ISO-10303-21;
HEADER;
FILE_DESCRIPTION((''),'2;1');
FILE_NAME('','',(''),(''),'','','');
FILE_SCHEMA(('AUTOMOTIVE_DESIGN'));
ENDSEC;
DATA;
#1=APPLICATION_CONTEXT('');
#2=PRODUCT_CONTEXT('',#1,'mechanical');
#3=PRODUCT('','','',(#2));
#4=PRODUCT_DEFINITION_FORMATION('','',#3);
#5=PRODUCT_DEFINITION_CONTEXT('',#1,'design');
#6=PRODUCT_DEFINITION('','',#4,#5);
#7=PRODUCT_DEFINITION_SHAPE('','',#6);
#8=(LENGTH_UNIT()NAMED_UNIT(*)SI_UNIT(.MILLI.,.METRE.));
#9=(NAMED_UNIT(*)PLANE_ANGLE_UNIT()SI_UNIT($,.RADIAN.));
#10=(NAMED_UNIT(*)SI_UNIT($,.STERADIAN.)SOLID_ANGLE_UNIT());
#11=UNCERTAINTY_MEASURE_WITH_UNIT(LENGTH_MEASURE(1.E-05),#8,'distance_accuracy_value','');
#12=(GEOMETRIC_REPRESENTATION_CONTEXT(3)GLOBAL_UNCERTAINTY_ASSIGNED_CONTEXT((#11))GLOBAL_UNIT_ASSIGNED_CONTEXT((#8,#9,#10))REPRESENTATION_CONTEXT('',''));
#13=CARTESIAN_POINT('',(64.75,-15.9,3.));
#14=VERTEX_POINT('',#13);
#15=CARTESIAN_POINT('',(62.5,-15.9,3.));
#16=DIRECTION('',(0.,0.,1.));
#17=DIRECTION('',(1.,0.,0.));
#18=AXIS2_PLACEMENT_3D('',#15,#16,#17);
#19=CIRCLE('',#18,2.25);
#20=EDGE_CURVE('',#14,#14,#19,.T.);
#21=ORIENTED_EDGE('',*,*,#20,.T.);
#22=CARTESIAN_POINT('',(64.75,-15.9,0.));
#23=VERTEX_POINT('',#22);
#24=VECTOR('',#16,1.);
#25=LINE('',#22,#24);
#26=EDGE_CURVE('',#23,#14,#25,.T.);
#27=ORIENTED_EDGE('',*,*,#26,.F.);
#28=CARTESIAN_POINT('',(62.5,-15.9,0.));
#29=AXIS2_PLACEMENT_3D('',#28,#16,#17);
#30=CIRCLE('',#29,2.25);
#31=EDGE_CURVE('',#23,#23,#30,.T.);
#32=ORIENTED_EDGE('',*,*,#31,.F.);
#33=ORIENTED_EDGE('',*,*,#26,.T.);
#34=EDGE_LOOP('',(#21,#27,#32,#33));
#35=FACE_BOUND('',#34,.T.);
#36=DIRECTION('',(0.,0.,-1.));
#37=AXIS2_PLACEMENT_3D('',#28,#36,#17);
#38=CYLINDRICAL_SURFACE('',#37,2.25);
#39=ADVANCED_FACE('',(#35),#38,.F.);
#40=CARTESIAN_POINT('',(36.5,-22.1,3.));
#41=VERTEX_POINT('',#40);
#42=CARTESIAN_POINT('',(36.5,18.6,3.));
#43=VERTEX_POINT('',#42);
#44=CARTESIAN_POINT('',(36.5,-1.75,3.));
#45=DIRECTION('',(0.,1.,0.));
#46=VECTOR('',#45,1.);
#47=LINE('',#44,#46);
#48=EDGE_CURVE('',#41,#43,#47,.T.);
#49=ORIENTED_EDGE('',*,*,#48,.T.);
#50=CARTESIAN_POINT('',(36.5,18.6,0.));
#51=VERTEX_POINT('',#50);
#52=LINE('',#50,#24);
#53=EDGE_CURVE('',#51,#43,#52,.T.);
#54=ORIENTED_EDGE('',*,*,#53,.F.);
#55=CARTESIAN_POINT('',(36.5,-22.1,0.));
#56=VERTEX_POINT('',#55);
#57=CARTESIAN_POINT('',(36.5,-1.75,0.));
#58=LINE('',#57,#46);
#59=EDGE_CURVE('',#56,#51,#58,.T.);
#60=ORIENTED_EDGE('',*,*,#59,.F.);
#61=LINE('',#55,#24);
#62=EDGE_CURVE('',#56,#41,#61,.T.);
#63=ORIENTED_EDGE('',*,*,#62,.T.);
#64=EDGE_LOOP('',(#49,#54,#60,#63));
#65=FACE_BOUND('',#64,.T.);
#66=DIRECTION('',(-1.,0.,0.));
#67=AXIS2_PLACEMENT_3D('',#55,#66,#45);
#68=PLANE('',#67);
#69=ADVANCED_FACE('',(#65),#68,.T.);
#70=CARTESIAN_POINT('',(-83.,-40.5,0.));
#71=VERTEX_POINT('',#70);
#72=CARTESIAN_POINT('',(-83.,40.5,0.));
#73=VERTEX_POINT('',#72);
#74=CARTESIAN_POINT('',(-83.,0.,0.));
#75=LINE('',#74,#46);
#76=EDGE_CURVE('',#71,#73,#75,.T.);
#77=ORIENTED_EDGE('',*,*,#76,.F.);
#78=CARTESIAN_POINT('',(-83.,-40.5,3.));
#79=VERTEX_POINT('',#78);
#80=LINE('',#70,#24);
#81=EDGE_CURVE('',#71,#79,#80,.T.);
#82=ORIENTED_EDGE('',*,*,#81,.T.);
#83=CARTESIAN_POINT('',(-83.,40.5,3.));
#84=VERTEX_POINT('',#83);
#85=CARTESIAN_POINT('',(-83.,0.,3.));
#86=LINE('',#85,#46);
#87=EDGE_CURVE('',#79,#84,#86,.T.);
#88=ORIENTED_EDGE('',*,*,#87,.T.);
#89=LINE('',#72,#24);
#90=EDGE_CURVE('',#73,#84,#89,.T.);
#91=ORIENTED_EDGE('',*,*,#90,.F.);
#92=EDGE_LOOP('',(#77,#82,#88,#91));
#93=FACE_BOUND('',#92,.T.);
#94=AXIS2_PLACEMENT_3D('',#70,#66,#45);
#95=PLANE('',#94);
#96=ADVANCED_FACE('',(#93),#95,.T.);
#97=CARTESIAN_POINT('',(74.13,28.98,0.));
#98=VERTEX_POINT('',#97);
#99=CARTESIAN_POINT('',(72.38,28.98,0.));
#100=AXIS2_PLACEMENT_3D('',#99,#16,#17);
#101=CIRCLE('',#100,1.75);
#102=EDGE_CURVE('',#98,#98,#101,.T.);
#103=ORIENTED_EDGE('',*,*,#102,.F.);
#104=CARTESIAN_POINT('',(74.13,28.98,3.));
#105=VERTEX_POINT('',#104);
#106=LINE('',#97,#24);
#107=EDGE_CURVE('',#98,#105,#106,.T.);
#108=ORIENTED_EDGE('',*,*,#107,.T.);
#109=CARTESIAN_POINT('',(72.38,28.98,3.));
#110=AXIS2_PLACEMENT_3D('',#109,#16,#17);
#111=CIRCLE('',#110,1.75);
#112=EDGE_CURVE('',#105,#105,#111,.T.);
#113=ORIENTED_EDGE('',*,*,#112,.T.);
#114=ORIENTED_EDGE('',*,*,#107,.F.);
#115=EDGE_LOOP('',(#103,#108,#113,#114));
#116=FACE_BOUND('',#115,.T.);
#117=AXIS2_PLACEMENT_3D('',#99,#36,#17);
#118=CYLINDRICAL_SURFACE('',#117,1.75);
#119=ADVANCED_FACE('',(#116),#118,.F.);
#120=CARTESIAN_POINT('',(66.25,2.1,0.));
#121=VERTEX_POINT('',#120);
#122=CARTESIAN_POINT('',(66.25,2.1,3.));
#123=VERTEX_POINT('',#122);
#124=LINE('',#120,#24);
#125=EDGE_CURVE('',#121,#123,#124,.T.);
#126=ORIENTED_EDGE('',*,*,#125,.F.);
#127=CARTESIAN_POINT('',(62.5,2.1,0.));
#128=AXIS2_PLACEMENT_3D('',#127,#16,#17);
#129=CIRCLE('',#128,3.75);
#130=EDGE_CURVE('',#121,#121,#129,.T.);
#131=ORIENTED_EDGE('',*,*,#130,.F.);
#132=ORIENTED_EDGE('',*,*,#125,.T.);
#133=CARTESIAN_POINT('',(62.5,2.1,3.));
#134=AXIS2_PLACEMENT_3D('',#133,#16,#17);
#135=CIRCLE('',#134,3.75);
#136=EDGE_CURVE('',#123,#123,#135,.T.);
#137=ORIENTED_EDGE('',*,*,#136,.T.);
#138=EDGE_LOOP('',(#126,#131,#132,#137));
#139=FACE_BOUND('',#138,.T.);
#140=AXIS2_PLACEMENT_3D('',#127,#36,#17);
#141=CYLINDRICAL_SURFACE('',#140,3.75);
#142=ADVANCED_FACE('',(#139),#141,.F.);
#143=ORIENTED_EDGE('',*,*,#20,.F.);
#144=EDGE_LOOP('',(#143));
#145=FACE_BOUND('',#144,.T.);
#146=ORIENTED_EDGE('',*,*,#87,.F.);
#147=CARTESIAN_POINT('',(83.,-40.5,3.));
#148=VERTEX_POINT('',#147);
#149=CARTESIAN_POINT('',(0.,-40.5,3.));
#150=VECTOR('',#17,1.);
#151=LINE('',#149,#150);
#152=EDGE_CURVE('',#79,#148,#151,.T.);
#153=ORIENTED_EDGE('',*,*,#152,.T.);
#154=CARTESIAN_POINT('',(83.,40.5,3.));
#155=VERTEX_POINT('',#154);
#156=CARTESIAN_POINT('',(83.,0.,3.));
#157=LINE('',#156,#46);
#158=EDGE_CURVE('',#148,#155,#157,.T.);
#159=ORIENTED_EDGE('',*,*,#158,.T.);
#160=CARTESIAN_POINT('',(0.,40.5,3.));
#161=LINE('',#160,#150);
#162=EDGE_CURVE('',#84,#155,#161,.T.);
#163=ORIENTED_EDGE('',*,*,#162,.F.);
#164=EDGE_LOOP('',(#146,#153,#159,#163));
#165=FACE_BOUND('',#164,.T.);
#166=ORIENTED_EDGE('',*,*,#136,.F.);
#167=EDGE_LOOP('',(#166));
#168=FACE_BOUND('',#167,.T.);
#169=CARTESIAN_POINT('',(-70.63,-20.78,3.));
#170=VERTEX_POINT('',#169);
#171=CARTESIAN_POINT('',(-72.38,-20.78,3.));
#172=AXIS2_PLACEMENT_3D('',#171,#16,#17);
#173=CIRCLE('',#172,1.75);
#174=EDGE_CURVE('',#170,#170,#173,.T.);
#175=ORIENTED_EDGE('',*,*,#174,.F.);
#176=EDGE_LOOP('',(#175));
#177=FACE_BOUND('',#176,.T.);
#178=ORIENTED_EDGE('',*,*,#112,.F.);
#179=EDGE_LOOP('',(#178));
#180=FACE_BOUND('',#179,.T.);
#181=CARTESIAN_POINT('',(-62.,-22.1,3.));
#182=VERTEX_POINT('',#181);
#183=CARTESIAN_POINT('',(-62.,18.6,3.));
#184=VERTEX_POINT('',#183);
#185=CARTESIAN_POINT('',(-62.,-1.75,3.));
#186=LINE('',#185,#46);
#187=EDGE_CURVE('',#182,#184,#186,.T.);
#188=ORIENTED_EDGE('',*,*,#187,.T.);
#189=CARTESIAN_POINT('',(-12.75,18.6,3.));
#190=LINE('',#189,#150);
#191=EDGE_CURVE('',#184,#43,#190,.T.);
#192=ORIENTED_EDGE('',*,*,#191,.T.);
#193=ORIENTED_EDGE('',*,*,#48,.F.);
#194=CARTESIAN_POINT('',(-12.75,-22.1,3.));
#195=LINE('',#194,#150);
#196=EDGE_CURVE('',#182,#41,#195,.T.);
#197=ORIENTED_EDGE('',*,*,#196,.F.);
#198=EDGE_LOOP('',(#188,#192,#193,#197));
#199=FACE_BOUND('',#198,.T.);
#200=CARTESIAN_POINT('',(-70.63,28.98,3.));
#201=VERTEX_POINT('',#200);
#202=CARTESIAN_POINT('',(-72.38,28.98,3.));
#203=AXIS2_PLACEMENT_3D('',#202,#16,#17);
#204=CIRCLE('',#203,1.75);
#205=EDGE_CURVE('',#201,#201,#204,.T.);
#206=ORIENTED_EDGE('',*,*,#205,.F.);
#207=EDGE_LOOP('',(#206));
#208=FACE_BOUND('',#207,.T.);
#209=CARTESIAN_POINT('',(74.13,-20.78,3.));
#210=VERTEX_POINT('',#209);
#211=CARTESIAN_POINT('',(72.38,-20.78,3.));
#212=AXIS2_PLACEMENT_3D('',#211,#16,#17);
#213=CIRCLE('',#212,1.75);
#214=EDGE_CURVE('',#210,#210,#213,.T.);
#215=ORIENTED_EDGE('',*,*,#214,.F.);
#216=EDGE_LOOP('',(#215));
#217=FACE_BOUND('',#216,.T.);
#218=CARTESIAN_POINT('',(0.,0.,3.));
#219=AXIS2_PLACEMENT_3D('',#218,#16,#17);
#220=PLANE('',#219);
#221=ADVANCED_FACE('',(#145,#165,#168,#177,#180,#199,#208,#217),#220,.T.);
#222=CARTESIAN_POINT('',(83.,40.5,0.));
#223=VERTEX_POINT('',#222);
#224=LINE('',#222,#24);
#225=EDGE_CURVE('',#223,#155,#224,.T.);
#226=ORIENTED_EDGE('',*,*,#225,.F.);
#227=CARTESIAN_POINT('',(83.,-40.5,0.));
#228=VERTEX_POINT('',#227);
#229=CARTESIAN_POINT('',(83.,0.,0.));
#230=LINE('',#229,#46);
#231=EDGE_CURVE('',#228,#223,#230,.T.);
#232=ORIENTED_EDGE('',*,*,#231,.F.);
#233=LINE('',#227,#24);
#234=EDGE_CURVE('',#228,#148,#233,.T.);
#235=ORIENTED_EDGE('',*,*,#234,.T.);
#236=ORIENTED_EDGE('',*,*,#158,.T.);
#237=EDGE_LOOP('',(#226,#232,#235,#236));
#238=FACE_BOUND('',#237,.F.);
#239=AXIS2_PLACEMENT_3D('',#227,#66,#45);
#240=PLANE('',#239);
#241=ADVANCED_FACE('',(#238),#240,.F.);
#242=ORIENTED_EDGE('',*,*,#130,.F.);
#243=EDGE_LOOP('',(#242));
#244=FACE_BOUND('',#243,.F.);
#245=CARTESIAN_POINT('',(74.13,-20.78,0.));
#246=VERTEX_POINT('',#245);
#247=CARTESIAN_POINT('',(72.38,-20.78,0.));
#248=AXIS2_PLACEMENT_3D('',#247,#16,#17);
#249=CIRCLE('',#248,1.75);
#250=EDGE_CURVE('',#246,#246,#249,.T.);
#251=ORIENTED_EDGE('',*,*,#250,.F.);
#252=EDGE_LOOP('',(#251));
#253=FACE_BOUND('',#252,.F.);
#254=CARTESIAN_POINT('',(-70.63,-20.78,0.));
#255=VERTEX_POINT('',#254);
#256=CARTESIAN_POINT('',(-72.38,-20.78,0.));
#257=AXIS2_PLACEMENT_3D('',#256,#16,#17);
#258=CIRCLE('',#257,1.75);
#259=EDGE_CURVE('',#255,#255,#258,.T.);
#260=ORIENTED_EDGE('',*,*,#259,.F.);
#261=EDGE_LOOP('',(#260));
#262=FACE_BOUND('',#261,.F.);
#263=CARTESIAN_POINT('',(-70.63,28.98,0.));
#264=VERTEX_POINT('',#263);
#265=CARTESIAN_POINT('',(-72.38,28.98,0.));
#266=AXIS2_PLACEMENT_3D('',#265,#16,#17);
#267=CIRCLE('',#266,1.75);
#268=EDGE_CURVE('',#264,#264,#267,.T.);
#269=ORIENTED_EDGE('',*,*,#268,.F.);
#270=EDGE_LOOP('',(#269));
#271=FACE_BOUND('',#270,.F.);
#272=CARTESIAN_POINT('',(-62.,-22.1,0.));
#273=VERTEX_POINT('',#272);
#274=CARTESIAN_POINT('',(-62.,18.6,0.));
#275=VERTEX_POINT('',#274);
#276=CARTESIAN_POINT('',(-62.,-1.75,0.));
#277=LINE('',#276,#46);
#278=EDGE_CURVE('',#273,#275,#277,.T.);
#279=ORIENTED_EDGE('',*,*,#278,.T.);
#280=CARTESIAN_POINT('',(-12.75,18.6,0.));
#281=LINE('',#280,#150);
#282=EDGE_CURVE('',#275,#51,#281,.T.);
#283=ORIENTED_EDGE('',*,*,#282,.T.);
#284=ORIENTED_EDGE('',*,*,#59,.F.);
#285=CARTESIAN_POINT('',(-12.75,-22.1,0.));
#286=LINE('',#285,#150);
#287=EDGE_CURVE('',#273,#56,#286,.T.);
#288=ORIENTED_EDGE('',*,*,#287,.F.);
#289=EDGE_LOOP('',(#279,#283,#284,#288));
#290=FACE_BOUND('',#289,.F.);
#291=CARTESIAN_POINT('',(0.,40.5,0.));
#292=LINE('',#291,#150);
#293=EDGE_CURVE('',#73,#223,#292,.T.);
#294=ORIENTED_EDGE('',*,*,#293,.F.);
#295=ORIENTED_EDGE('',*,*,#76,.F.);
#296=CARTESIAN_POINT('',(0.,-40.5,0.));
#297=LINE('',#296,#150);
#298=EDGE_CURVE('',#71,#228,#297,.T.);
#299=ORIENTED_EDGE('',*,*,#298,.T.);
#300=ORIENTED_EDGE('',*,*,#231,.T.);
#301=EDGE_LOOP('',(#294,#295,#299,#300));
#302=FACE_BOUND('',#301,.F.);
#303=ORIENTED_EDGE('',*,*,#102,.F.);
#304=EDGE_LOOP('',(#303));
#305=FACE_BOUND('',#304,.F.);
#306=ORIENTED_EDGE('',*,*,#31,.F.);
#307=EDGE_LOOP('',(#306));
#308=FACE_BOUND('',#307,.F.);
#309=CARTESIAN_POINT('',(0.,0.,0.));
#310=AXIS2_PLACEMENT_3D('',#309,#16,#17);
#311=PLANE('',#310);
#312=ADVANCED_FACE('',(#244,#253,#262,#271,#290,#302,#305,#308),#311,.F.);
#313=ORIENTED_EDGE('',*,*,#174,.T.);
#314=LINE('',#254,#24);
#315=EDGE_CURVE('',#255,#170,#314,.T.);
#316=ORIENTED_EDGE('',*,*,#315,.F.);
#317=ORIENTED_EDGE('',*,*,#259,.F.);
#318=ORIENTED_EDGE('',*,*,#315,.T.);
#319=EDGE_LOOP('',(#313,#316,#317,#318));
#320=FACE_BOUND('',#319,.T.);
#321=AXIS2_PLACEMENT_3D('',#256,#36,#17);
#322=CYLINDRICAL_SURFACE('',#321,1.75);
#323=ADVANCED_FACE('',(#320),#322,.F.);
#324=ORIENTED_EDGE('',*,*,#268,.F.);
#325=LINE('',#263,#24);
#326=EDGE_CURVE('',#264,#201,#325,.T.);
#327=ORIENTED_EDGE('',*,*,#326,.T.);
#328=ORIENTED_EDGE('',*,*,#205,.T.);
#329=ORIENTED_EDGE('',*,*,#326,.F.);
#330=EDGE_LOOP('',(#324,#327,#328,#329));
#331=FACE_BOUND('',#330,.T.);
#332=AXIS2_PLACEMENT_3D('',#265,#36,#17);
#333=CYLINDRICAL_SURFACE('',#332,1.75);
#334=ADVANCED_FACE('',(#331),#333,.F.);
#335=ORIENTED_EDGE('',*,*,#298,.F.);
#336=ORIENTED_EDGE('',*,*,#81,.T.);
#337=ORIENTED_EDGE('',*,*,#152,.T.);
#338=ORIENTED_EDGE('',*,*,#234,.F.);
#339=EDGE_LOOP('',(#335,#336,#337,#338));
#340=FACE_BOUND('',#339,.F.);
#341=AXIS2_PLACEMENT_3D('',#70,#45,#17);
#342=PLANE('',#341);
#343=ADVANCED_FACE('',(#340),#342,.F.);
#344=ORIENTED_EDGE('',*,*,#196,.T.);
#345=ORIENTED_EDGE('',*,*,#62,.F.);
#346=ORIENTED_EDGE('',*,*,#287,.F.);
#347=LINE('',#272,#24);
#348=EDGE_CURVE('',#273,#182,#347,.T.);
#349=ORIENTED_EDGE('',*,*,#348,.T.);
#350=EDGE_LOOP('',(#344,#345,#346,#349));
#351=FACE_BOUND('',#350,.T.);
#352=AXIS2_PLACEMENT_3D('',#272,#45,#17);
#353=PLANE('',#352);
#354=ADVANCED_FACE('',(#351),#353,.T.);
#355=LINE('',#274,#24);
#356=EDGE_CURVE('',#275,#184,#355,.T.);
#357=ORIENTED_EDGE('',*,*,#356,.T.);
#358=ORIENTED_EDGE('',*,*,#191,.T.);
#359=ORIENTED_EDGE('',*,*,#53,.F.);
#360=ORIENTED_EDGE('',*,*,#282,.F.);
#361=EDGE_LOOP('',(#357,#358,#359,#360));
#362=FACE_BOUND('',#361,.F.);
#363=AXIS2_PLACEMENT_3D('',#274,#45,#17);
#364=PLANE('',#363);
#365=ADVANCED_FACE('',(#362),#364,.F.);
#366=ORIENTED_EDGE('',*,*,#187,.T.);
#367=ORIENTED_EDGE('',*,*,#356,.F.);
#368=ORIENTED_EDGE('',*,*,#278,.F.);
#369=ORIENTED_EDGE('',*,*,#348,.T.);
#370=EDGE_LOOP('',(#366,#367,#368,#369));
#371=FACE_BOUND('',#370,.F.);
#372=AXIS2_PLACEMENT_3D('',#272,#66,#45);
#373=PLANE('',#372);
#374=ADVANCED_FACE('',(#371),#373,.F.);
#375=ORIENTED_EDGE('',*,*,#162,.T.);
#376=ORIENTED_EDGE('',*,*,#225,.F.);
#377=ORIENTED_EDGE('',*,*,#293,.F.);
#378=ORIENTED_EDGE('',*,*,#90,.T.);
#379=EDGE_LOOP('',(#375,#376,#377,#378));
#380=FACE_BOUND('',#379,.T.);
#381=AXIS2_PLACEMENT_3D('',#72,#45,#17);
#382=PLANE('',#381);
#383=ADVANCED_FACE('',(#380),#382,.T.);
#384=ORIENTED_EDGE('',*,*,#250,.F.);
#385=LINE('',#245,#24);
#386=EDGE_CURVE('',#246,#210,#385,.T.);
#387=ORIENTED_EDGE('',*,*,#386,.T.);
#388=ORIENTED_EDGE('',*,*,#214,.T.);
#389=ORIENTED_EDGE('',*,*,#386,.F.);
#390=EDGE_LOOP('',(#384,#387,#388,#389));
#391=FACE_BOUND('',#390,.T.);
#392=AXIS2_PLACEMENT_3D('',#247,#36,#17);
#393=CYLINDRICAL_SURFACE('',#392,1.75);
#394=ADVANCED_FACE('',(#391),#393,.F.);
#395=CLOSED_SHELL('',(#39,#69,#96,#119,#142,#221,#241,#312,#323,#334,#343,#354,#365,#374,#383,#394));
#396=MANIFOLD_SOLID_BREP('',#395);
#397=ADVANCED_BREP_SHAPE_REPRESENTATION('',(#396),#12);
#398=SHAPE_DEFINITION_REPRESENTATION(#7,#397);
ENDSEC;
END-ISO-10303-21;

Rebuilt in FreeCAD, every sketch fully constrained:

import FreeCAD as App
import Part
import Sketcher

V = App.Vector
Q = App.Units.Quantity


def add_polygon(sketch, points):
    """Adds a closed chain of lines whose ends are joined by coincident constraints."""
    first, n = sketch.GeometryCount, len(points)
    for a, b in zip(points, points[1:] + points[:1]):
        sketch.addGeometry(Part.LineSegment(App.Vector(*a, 0), App.Vector(*b, 0)), False)
    for i in range(n):
        sketch.addConstraint(Sketcher.Constraint("Coincident", first + i, 2, first + (i + 1) % n, 1))

doc = App.newDocument("Part")
params = doc.addObject("Spreadsheet::Sheet", "Params")
for row, (alias, value) in enumerate([
    ("sketch1_diameter", "3.5 mm"),
    ("sketch1_diameter2", "4.5 mm"),
    ("sketch1_diameter3", "7.5 mm"),
    ("sketch1_width", "166 mm"),
    ("sketch1_height", "81 mm"),
    ("pad1_length", "3 mm"),
], start=1):
    params.set(f"A{row}", alias)
    params.set(f"B{row}", "=" + value)
    params.setAlias(f"B{row}", alias)

body = doc.addObject("PartDesign::Body", "Body")

sketch1 = doc.addObject("Sketcher::SketchObject", "Sketch")
body.addObject(sketch1)
sketch1.AttachmentSupport = (doc.XY_Plane, [""])
sketch1.MapMode = "FlatFace"
add_polygon(sketch1, [(-83, 40.5), (-83, -40.5), (83, -40.5), (83, 40.5)])
sketch1.addGeometry(Part.Circle(V(-72.4, -20.8, 0), V(0, 0, 1), 1.8), False)
add_polygon(sketch1, [(36.5, -22.1), (-62, -22.1), (-62, 18.6), (36.5, 18.6)])
sketch1.addGeometry(Part.Circle(V(72.4, -20.8, 0), V(0, 0, 1), 1.8), False)
sketch1.addGeometry(Part.Circle(V(62.5, -15.9, 0), V(0, 0, 1), 2.2), False)
sketch1.addGeometry(Part.Circle(V(62.5, 2.1, 0), V(0, 0, 1), 3.8), False)
sketch1.addGeometry(Part.Circle(V(-72.4, 29, 0), V(0, 0, 1), 1.8), False)
sketch1.addGeometry(Part.Circle(V(72.4, 29, 0), V(0, 0, 1), 1.8), False)
sketch1.addConstraint(Sketcher.Constraint("Vertical", 0))
sketch1.addConstraint(Sketcher.Constraint("Horizontal", 1))
sketch1.addConstraint(Sketcher.Constraint("Vertical", 2))
sketch1.addConstraint(Sketcher.Constraint("Horizontal", 3))
sketch1.addConstraint(Sketcher.Constraint("Horizontal", 5))
sketch1.addConstraint(Sketcher.Constraint("Vertical", 6))
sketch1.addConstraint(Sketcher.Constraint("Horizontal", 7))
sketch1.addConstraint(Sketcher.Constraint("Vertical", 8))
sketch1.addConstraint(Sketcher.Constraint("Equal", 4, 9))
sketch1.addConstraint(Sketcher.Constraint("Equal", 9, 12))
sketch1.addConstraint(Sketcher.Constraint("Equal", 12, 13))
sketch1.addConstraint(Sketcher.Constraint("Symmetric", 0, 2, 2, 2, -1, 1))
sketch1.addConstraint(Sketcher.Constraint("Symmetric", 4, 3, 9, 3, -2))
sketch1.addConstraint(Sketcher.Constraint("Symmetric", 12, 3, 13, 3, -2))
sketch1.addConstraint(Sketcher.Constraint("Vertical", 10, 3, 11, 3))
sketch1.addConstraint(Sketcher.Constraint("Vertical", 4, 3, 12, 3))
sketch1.addConstraint(Sketcher.Constraint("Diameter", 4, Q("3.5 mm")))
sketch1.addConstraint(Sketcher.Constraint("Diameter", 10, Q("4.5 mm")))
sketch1.addConstraint(Sketcher.Constraint("Diameter", 11, Q("7.5 mm")))
sketch1.addConstraint(Sketcher.Constraint("DistanceX", 1, 1, 1, 2, Q("166 mm")))
sketch1.addConstraint(Sketcher.Constraint("DistanceY", 0, 2, 0, 1, Q("81 mm")))
sketch1.addConstraint(Sketcher.Constraint("DistanceX", 5, 2, 5, 1, Q("98.5 mm")))
sketch1.addConstraint(Sketcher.Constraint("DistanceY", 6, 1, 6, 2, Q("40.7 mm")))
sketch1.addConstraint(Sketcher.Constraint("DistanceX", 5, 2, -1, 1, Q("62 mm")))
sketch1.addConstraint(Sketcher.Constraint("DistanceY", 10, 3, 11, 3, Q("18 mm")))
sketch1.addConstraint(Sketcher.Constraint("DistanceX", 7, 2, 11, 3, Q("26 mm")))
sketch1.addConstraint(Sketcher.Constraint("DistanceY", 10, 3, -1, 1, Q("15.9 mm")))
sketch1.addConstraint(Sketcher.Constraint("DistanceY", 5, 2, -1, 1, Q("22.1 mm")))
sketch1.addConstraint(Sketcher.Constraint("DistanceX", 4, 3, -1, 1, Q("72.38 mm")))
sketch1.addConstraint(Sketcher.Constraint("DistanceY", 4, 3, -1, 1, Q("20.78 mm")))
sketch1.addConstraint(Sketcher.Constraint("DistanceY", -1, 1, 12, 3, Q("28.98 mm")))
sketch1.setExpression("Constraints[24]", "Params.sketch1_diameter")
sketch1.setExpression("Constraints[25]", "Params.sketch1_diameter2")
sketch1.setExpression("Constraints[26]", "Params.sketch1_diameter3")
sketch1.setExpression("Constraints[27]", "Params.sketch1_width")
sketch1.setExpression("Constraints[28]", "Params.sketch1_height")
pad1 = doc.addObject("PartDesign::Pad", "Pad")
body.addObject(pad1)
pad1.Profile = sketch1
pad1.setExpression("Length", "Params.pad1_length")

doc.recompute()
